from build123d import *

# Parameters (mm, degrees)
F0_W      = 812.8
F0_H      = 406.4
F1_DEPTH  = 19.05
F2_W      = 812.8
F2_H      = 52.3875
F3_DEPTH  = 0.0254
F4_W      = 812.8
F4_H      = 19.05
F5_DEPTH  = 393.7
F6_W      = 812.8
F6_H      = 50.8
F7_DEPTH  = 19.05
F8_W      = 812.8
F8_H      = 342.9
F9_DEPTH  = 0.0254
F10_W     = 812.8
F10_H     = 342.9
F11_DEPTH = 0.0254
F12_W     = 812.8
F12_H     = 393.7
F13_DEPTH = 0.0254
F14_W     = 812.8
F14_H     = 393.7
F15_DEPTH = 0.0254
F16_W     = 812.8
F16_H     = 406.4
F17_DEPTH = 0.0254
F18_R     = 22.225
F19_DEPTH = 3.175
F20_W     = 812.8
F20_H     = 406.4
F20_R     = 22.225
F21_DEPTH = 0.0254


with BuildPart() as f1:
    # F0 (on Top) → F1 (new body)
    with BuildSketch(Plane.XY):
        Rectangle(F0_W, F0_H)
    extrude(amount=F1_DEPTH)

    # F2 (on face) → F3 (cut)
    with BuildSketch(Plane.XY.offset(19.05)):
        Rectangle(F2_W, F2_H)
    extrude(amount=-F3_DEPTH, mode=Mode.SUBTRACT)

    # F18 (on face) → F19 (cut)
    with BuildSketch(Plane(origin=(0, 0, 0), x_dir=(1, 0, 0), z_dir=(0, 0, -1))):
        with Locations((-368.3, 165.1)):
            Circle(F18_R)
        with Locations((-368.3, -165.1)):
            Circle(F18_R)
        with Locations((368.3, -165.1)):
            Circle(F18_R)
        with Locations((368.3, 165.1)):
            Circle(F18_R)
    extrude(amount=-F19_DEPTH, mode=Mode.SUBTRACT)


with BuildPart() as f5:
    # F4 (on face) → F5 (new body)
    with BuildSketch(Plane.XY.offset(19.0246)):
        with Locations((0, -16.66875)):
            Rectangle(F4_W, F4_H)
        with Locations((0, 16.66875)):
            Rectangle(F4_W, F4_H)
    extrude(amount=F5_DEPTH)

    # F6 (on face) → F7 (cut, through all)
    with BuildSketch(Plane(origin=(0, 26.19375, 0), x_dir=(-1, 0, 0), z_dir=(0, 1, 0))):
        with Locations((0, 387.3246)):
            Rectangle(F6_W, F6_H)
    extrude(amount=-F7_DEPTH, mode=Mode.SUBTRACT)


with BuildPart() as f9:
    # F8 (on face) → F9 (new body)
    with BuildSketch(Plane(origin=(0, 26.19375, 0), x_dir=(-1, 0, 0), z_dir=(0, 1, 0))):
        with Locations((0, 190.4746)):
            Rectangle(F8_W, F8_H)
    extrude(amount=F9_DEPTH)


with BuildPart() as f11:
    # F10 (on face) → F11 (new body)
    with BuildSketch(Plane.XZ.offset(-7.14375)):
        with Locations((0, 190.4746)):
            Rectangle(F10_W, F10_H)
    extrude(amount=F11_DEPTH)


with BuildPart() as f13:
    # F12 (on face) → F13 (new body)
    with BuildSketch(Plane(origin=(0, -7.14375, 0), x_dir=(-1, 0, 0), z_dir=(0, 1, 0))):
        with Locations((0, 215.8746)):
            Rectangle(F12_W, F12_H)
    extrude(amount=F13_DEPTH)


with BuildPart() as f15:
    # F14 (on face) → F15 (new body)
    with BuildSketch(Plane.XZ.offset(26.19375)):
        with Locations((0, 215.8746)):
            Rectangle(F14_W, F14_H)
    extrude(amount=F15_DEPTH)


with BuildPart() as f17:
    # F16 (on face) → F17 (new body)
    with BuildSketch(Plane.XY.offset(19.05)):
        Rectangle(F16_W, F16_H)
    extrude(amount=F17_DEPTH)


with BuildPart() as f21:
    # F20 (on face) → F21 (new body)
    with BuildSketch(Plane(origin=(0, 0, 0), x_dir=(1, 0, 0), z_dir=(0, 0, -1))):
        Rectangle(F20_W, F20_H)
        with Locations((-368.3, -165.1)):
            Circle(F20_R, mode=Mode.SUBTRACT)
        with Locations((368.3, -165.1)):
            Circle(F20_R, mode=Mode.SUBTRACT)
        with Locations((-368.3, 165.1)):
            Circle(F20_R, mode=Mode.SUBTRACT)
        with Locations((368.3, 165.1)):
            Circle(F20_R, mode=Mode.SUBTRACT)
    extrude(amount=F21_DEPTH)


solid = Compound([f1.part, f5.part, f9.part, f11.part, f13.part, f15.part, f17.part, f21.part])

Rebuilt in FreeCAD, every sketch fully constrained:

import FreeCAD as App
import Part
import Sketcher
Q = App.Units.Quantity


def add_polygon(sketch, points):
    """Adds a closed chain of lines whose ends are joined by coincident constraints."""
    first, n = sketch.GeometryCount, len(points)
    for a, b in zip(points, points[1:] + points[:1]):
        sketch.addGeometry(Part.LineSegment(App.Vector(*a, 0), App.Vector(*b, 0)), False)
    for i in range(n):
        sketch.addConstraint(Sketcher.Constraint("Coincident", first + i, 2, first + (i + 1) % n, 1))

doc = App.newDocument("Part")
body = doc.addObject("PartDesign::Body", "Body")

# Sketch on XY plane
sketch1 = doc.addObject("Sketcher::SketchObject", "Sketch")
body.addObject(sketch1)
sketch1.AttachmentSupport = (doc.XY_Plane, [""])
sketch1.MapMode = "FlatFace"
add_polygon(sketch1, [(-406.4, 203.2), (-406.4, -203.2), (406.4, -203.2), (406.4, 203.2)])  # lines 0-3
sketch1.addConstraint(Sketcher.Constraint("Vertical", 0))
sketch1.addConstraint(Sketcher.Constraint("Horizontal", 1))
sketch1.addConstraint(Sketcher.Constraint("Vertical", 2))
sketch1.addConstraint(Sketcher.Constraint("Horizontal", 3))
sketch1.addConstraint(Sketcher.Constraint("Symmetric", 0, 2, 2, 2, -1, 1))
sketch1.addConstraint(Sketcher.Constraint("DistanceX", 1, 1, 1, 2, Q("32 in")))
sketch1.addConstraint(Sketcher.Constraint("DistanceY", 0, 2, 0, 1, Q("16 in")))
pad1 = doc.addObject("PartDesign::Pad", "Pad")
body.addObject(pad1)
pad1.Profile = sketch1
pad1.Length = Q("0.75 in")

# Sketch on XY plane
sketch2 = doc.addObject("Sketcher::SketchObject", "Sketch001")
body.addObject(sketch2)
sketch2.AttachmentSupport = (doc.XY_Plane, [""])
sketch2.MapMode = "FlatFace"
sketch2.AttachmentOffset = App.Placement(App.Vector(0, 0, 0.75 * 25.4), App.Rotation())
add_polygon(sketch2, [(-406.4, 26.19375), (-406.4, -26.19375), (406.4, -26.19375), (406.4, 26.19375)])  # lines 0-3
sketch2.addConstraint(Sketcher.Constraint("Vertical", 0))
sketch2.addConstraint(Sketcher.Constraint("Horizontal", 1))
sketch2.addConstraint(Sketcher.Constraint("Vertical", 2))
sketch2.addConstraint(Sketcher.Constraint("Horizontal", 3))
sketch2.addConstraint(Sketcher.Constraint("Symmetric", 0, 2, 2, 2, -1, 1))
sketch2.addConstraint(Sketcher.Constraint("DistanceX", 1, 1, 1, 2, Q("32 in")))
sketch2.addConstraint(Sketcher.Constraint("DistanceY", 0, 2, 0, 1, Q("2.0625 in")))
pocket1 = doc.addObject("PartDesign::Pocket", "Pocket")
body.addObject(pocket1)
pocket1.Profile = sketch2
pocket1.Length = Q("0.001 in")

# Sketch on XY plane
sketch3 = doc.addObject("Sketcher::SketchObject", "Sketch002")
body.addObject(sketch3)
sketch3.AttachmentSupport = (doc.XY_Plane, [""])
sketch3.MapMode = "FlatFace"
sketch3.addGeometry(Part.Circle(App.Vector(-368.3, -165.1, 0), App.Vector(0, 0, 1), 22.225), False)
sketch3.addGeometry(Part.Circle(App.Vector(-368.3, 165.1, 0), App.Vector(0, 0, 1), 22.225), False)
sketch3.addGeometry(Part.Circle(App.Vector(368.3, 165.1, 0), App.Vector(0, 0, 1), 22.225), False)
sketch3.addGeometry(Part.Circle(App.Vector(368.3, -165.1, 0), App.Vector(0, 0, 1), 22.225), False)
sketch3.addConstraint(Sketcher.Constraint("Equal", 0, 1))
sketch3.addConstraint(Sketcher.Constraint("Equal", 1, 2))
sketch3.addConstraint(Sketcher.Constraint("Equal", 2, 3))
sketch3.addConstraint(Sketcher.Constraint("Symmetric", 0, 3, 2, 3, -1, 1))
sketch3.addConstraint(Sketcher.Constraint("Symmetric", 1, 3, 3, 3, -1, 1))
sketch3.addConstraint(Sketcher.Constraint("Symmetric", 1, 3, 2, 3, -2))
sketch3.addConstraint(Sketcher.Constraint("Diameter", 0, Q("1.75 in")))
sketch3.addConstraint(Sketcher.Constraint("DistanceY", 0, 3, 1, 3, Q("13 in")))
sketch3.addConstraint(Sketcher.Constraint("DistanceX", 1, 3, 2, 3, Q("29 in")))
pocket2 = doc.addObject("PartDesign::Pocket", "Pocket001")
body.addObject(pocket2)
pocket2.Profile = sketch3
pocket2.Length = Q("0.125 in")
pocket2.Reversed = True
body2 = doc.addObject("PartDesign::Body", "Body001")
body2.AllowCompound = True

# Sketch on XY plane
sketch4 = doc.addObject("Sketcher::SketchObject", "Sketch003")
body2.addObject(sketch4)
sketch4.AttachmentSupport = (doc.getObject("XY_Plane001"), [""])
sketch4.MapMode = "FlatFace"
sketch4.AttachmentOffset = App.Placement(App.Vector(0, 0, 0.749 * 25.4), App.Rotation())
add_polygon(sketch4, [(-406.4, -7.14375), (-406.4, -26.19375), (406.4, -26.19375), (406.4, -7.14375)])  # lines 0-3
add_polygon(sketch4, [(-406.4, 26.19375), (-406.4, 7.14375), (406.4, 7.14375), (406.4, 26.19375)])  # lines 4-7
sketch4.addConstraint(Sketcher.Constraint("Vertical", 0))
sketch4.addConstraint(Sketcher.Constraint("Horizontal", 1))
sketch4.addConstraint(Sketcher.Constraint("Vertical", 2))
sketch4.addConstraint(Sketcher.Constraint("Horizontal", 3))
sketch4.addConstraint(Sketcher.Constraint("Vertical", 4))
sketch4.addConstraint(Sketcher.Constraint("Horizontal", 5))
sketch4.addConstraint(Sketcher.Constraint("Vertical", 6))
sketch4.addConstraint(Sketcher.Constraint("Horizontal", 7))
sketch4.addConstraint(Sketcher.Constraint("Symmetric", 2, 2, 4, 2, -1, 1))
sketch4.addConstraint(Sketcher.Constraint("Symmetric", 0, 2, 6, 2, -1, 1))
sketch4.addConstraint(Sketcher.Constraint("Vertical", 3, 2, 4, 2))
sketch4.addConstraint(Sketcher.Constraint("DistanceX", 1, 1, 1, 2, Q("32 in")))
sketch4.addConstraint(Sketcher.Constraint("DistanceY", 0, 2, 0, 1, Q("0.75 in")))
sketch4.addConstraint(Sketcher.Constraint("DistanceY", 0, 2, -1, 1, Q("1.03125 in")))
pad2 = doc.addObject("PartDesign::Pad", "Pad001")
body2.addObject(pad2)
pad2.Profile = sketch4
pad2.Length = Q("15.5 in")

# Sketch on XZ plane
sketch5 = doc.addObject("Sketcher::SketchObject", "Sketch004")
body2.addObject(sketch5)
sketch5.AttachmentSupport = (doc.getObject("XZ_Plane001"), [""])
sketch5.MapMode = "FlatFace"
sketch5.AttachmentOffset = App.Placement(App.Vector(0, 0, -1.03125 * 25.4), App.Rotation())
add_polygon(sketch5, [(406.4, 412.7246), (406.4, 361.9246), (-406.4, 361.9246), (-406.4, 412.7246)])  # lines 0-3
sketch5.addConstraint(Sketcher.Constraint("Vertical", 0))
sketch5.addConstraint(Sketcher.Constraint("Horizontal", 1))
sketch5.addConstraint(Sketcher.Constraint("Vertical", 2))
sketch5.addConstraint(Sketcher.Constraint("Horizontal", 3))
sketch5.addConstraint(Sketcher.Constraint("DistanceX", 1, 2, 1, 1, Q("32 in")))
sketch5.addConstraint(Sketcher.Constraint("DistanceY", 0, 2, 0, 1, Q("2 in")))
sketch5.addConstraint(Sketcher.Constraint("DistanceX", -1, 1, 0, 2, Q("16 in")))
sketch5.addConstraint(Sketcher.Constraint("DistanceY", -1, 1, 0, 2, Q("14.249 in")))
pocket3 = doc.addObject("PartDesign::Pocket", "Pocket002")
body2.addObject(pocket3)
pocket3.Profile = sketch5
pocket3.Length = Q("0.75 in")
pocket3.Reversed = True
body3 = doc.addObject("PartDesign::Body", "Body002")

# Sketch on XZ plane
sketch6 = doc.addObject("Sketcher::SketchObject", "Sketch005")
body3.addObject(sketch6)
sketch6.AttachmentSupport = (doc.getObject("XZ_Plane002"), [""])
sketch6.MapMode = "FlatFace"
sketch6.AttachmentOffset = App.Placement(App.Vector(0, 0, -1.03125 * 25.4), App.Rotation())
add_polygon(sketch6, [(406.4, 361.9246), (406.4, 19.0246), (-406.4, 19.0246), (-406.4, 361.9246)])  # lines 0-3
sketch6.addConstraint(Sketcher.Constraint("Vertical", 0))
sketch6.addConstraint(Sketcher.Constraint("Horizontal", 1))
sketch6.addConstraint(Sketcher.Constraint("Vertical", 2))
sketch6.addConstraint(Sketcher.Constraint("Horizontal", 3))
sketch6.addConstraint(Sketcher.Constraint("DistanceX", 1, 2, 1, 1, Q("32 in")))
sketch6.addConstraint(Sketcher.Constraint("DistanceY", 0, 2, 0, 1, Q("13.5 in")))
sketch6.addConstraint(Sketcher.Constraint("DistanceX", -1, 1, 0, 2, Q("16 in")))
sketch6.addConstraint(Sketcher.Constraint("DistanceY", -1, 1, 0, 2, Q("0.749 in")))
pad3 = doc.addObject("PartDesign::Pad", "Pad002")
body3.addObject(pad3)
pad3.Profile = sketch6
pad3.Length = Q("0.001 in")
pad3.Reversed = True
body4 = doc.addObject("PartDesign::Body", "Body003")

# Sketch on XZ plane
sketch7 = doc.addObject("Sketcher::SketchObject", "Sketch006")
body4.addObject(sketch7)
sketch7.AttachmentSupport = (doc.getObject("XZ_Plane003"), [""])
sketch7.MapMode = "FlatFace"
sketch7.AttachmentOffset = App.Placement(App.Vector(0, 0, -0.28125 * 25.4), App.Rotation())
add_polygon(sketch7, [(-406.4, 361.9246), (-406.4, 19.0246), (406.4, 19.0246), (406.4, 361.9246)])  # lines 0-3
sketch7.addConstraint(Sketcher.Constraint("Vertical", 0))
sketch7.addConstraint(Sketcher.Constraint("Horizontal", 1))
sketch7.addConstraint(Sketcher.Constraint("Vertical", 2))
sketch7.addConstraint(Sketcher.Constraint("Horizontal", 3))
sketch7.addConstraint(Sketcher.Constraint("DistanceX", 1, 1, 1, 2, Q("32 in")))
sketch7.addConstraint(Sketcher.Constraint("DistanceY", 0, 2, 0, 1, Q("13.5 in")))
sketch7.addConstraint(Sketcher.Constraint("DistanceX", 0, 2, -1, 1, Q("16 in")))
sketch7.addConstraint(Sketcher.Constraint("DistanceY", -1, 1, 0, 2, Q("0.749 in")))
pad4 = doc.addObject("PartDesign::Pad", "Pad003")
body4.addObject(pad4)
pad4.Profile = sketch7
pad4.Length = Q("0.001 in")
body5 = doc.addObject("PartDesign::Body", "Body004")

# Sketch on XZ plane
sketch8 = doc.addObject("Sketcher::SketchObject", "Sketch007")
body5.addObject(sketch8)
sketch8.AttachmentSupport = (doc.getObject("XZ_Plane004"), [""])
sketch8.MapMode = "FlatFace"
sketch8.AttachmentOffset = App.Placement(App.Vector(0, 0, 0.28125 * 25.4), App.Rotation())
add_polygon(sketch8, [(406.4, 412.7246), (406.4, 19.0246), (-406.4, 19.0246), (-406.4, 412.7246)])  # lines 0-3
sketch8.addConstraint(Sketcher.Constraint("Vertical", 0))
sketch8.addConstraint(Sketcher.Constraint("Horizontal", 1))
sketch8.addConstraint(Sketcher.Constraint("Vertical", 2))
sketch8.addConstraint(Sketcher.Constraint("Horizontal", 3))
sketch8.addConstraint(Sketcher.Constraint("DistanceX", 1, 2, 1, 1, Q("32 in")))
sketch8.addConstraint(Sketcher.Constraint("DistanceY", 0, 2, 0, 1, Q("15.5 in")))
sketch8.addConstraint(Sketcher.Constraint("DistanceX", -1, 1, 0, 2, Q("16 in")))
sketch8.addConstraint(Sketcher.Constraint("DistanceY", -1, 1, 0, 2, Q("0.749 in")))
pad5 = doc.addObject("PartDesign::Pad", "Pad004")
body5.addObject(pad5)
pad5.Profile = sketch8
pad5.Length = Q("0.001 in")
pad5.Reversed = True
body6 = doc.addObject("PartDesign::Body", "Body005")

# Sketch on XZ plane
sketch9 = doc.addObject("Sketcher::SketchObject", "Sketch008")
body6.addObject(sketch9)
sketch9.AttachmentSupport = (doc.getObject("XZ_Plane005"), [""])
sketch9.MapMode = "FlatFace"
sketch9.AttachmentOffset = App.Placement(App.Vector(0, 0, 1.03125 * 25.4), App.Rotation())
add_polygon(sketch9, [(-406.4, 412.7246), (-406.4, 19.0246), (406.4, 19.0246), (406.4, 412.7246)])  # lines 0-3
sketch9.addConstraint(Sketcher.Constraint("Vertical", 0))
sketch9.addConstraint(Sketcher.Constraint("Horizontal", 1))
sketch9.addConstraint(Sketcher.Constraint("Vertical", 2))
sketch9.addConstraint(Sketcher.Constraint("Horizontal", 3))
sketch9.addConstraint(Sketcher.Constraint("DistanceX", 1, 1, 1, 2, Q("32 in")))
sketch9.addConstraint(Sketcher.Constraint("DistanceY", 0, 2, 0, 1, Q("15.5 in")))
sketch9.addConstraint(Sketcher.Constraint("DistanceX", 0, 2, -1, 1, Q("16 in")))
sketch9.addConstraint(Sketcher.Constraint("DistanceY", -1, 1, 0, 2, Q("0.749 in")))
pad6 = doc.addObject("PartDesign::Pad", "Pad005")
body6.addObject(pad6)
pad6.Profile = sketch9
pad6.Length = Q("0.001 in")
body7 = doc.addObject("PartDesign::Body", "Body006")

# Sketch on XY plane
sketch10 = doc.addObject("Sketcher::SketchObject", "Sketch009")
body7.addObject(sketch10)
sketch10.AttachmentSupport = (doc.getObject("XY_Plane006"), [""])
sketch10.MapMode = "FlatFace"
sketch10.AttachmentOffset = App.Placement(App.Vector(0, 0, 0.75 * 25.4), App.Rotation())
add_polygon(sketch10, [(-406.4, 203.2), (-406.4, -203.2), (406.4, -203.2), (406.4, 203.2)])  # lines 0-3
sketch10.addConstraint(Sketcher.Constraint("Vertical", 0))
sketch10.addConstraint(Sketcher.Constraint("Horizontal", 1))
sketch10.addConstraint(Sketcher.Constraint("Vertical", 2))
sketch10.addConstraint(Sketcher.Constraint("Horizontal", 3))
sketch10.addConstraint(Sketcher.Constraint("Symmetric", 0, 2, 2, 2, -1, 1))
sketch10.addConstraint(Sketcher.Constraint("DistanceX", 1, 1, 1, 2, Q("32 in")))
sketch10.addConstraint(Sketcher.Constraint("DistanceY", 0, 2, 0, 1, Q("16 in")))
pad7 = doc.addObject("PartDesign::Pad", "Pad006")
body7.addObject(pad7)
pad7.Profile = sketch10
pad7.Length = Q("0.001 in")
body8 = doc.addObject("PartDesign::Body", "Body007")

# Sketch on XY plane
sketch11 = doc.addObject("Sketcher::SketchObject", "Sketch010")
body8.addObject(sketch11)
sketch11.AttachmentSupport = (doc.getObject("XY_Plane007"), [""])
sketch11.MapMode = "FlatFace"
add_polygon(sketch11, [(-406.4, -203.2), (-406.4, 203.2), (406.4, 203.2), (406.4, -203.2)])  # lines 0-3
sketch11.addGeometry(Part.Circle(App.Vector(-368.3, 165.1, 0), App.Vector(0, 0, 1), 22.225), False)  # 4
sketch11.addGeometry(Part.Circle(App.Vector(368.3, 165.1, 0), App.Vector(0, 0, 1), 22.225), False)  # 5
sketch11.addGeometry(Part.Circle(App.Vector(-368.3, -165.1, 0), App.Vector(0, 0, 1), 22.225), False)  # 6
sketch11.addGeometry(Part.Circle(App.Vector(368.3, -165.1, 0), App.Vector(0, 0, 1), 22.225), False)  # 7
sketch11.addConstraint(Sketcher.Constraint("Vertical", 0))
sketch11.addConstraint(Sketcher.Constraint("Horizontal", 1))
sketch11.addConstraint(Sketcher.Constraint("Vertical", 2))
sketch11.addConstraint(Sketcher.Constraint("Horizontal", 3))
sketch11.addConstraint(Sketcher.Constraint("Equal", 4, 5))
sketch11.addConstraint(Sketcher.Constraint("Equal", 5, 6))
sketch11.addConstraint(Sketcher.Constraint("Equal", 6, 7))
sketch11.addConstraint(Sketcher.Constraint("Symmetric", 5, 3, 6, 3, -1, 1))
sketch11.addConstraint(Sketcher.Constraint("Symmetric", 4, 3, 7, 3, -1, 1))
sketch11.addConstraint(Sketcher.Constraint("Symmetric", 0, 2, 2, 2, -1, 1))
sketch11.addConstraint(Sketcher.Constraint("Symmetric", 4, 3, 5, 3, -2))
sketch11.addConstraint(Sketcher.Constraint("Diameter", 4, Q("1.75 in")))
sketch11.addConstraint(Sketcher.Constraint("DistanceX", 1, 1, 1, 2, Q("32 in")))
sketch11.addConstraint(Sketcher.Constraint("DistanceY", 0, 1, 0, 2, Q("16 in")))
sketch11.addConstraint(Sketcher.Constraint("DistanceX", 4, 3, 5, 3, Q("29 in")))
sketch11.addConstraint(Sketcher.Constraint("DistanceY", 6, 3, 4, 3, Q("13 in")))
pad8 = doc.addObject("PartDesign::Pad", "Pad007")
body8.addObject(pad8)
pad8.Profile = sketch11
pad8.Length = Q("0.001 in")
pad8.Reversed = True

doc.recompute()
